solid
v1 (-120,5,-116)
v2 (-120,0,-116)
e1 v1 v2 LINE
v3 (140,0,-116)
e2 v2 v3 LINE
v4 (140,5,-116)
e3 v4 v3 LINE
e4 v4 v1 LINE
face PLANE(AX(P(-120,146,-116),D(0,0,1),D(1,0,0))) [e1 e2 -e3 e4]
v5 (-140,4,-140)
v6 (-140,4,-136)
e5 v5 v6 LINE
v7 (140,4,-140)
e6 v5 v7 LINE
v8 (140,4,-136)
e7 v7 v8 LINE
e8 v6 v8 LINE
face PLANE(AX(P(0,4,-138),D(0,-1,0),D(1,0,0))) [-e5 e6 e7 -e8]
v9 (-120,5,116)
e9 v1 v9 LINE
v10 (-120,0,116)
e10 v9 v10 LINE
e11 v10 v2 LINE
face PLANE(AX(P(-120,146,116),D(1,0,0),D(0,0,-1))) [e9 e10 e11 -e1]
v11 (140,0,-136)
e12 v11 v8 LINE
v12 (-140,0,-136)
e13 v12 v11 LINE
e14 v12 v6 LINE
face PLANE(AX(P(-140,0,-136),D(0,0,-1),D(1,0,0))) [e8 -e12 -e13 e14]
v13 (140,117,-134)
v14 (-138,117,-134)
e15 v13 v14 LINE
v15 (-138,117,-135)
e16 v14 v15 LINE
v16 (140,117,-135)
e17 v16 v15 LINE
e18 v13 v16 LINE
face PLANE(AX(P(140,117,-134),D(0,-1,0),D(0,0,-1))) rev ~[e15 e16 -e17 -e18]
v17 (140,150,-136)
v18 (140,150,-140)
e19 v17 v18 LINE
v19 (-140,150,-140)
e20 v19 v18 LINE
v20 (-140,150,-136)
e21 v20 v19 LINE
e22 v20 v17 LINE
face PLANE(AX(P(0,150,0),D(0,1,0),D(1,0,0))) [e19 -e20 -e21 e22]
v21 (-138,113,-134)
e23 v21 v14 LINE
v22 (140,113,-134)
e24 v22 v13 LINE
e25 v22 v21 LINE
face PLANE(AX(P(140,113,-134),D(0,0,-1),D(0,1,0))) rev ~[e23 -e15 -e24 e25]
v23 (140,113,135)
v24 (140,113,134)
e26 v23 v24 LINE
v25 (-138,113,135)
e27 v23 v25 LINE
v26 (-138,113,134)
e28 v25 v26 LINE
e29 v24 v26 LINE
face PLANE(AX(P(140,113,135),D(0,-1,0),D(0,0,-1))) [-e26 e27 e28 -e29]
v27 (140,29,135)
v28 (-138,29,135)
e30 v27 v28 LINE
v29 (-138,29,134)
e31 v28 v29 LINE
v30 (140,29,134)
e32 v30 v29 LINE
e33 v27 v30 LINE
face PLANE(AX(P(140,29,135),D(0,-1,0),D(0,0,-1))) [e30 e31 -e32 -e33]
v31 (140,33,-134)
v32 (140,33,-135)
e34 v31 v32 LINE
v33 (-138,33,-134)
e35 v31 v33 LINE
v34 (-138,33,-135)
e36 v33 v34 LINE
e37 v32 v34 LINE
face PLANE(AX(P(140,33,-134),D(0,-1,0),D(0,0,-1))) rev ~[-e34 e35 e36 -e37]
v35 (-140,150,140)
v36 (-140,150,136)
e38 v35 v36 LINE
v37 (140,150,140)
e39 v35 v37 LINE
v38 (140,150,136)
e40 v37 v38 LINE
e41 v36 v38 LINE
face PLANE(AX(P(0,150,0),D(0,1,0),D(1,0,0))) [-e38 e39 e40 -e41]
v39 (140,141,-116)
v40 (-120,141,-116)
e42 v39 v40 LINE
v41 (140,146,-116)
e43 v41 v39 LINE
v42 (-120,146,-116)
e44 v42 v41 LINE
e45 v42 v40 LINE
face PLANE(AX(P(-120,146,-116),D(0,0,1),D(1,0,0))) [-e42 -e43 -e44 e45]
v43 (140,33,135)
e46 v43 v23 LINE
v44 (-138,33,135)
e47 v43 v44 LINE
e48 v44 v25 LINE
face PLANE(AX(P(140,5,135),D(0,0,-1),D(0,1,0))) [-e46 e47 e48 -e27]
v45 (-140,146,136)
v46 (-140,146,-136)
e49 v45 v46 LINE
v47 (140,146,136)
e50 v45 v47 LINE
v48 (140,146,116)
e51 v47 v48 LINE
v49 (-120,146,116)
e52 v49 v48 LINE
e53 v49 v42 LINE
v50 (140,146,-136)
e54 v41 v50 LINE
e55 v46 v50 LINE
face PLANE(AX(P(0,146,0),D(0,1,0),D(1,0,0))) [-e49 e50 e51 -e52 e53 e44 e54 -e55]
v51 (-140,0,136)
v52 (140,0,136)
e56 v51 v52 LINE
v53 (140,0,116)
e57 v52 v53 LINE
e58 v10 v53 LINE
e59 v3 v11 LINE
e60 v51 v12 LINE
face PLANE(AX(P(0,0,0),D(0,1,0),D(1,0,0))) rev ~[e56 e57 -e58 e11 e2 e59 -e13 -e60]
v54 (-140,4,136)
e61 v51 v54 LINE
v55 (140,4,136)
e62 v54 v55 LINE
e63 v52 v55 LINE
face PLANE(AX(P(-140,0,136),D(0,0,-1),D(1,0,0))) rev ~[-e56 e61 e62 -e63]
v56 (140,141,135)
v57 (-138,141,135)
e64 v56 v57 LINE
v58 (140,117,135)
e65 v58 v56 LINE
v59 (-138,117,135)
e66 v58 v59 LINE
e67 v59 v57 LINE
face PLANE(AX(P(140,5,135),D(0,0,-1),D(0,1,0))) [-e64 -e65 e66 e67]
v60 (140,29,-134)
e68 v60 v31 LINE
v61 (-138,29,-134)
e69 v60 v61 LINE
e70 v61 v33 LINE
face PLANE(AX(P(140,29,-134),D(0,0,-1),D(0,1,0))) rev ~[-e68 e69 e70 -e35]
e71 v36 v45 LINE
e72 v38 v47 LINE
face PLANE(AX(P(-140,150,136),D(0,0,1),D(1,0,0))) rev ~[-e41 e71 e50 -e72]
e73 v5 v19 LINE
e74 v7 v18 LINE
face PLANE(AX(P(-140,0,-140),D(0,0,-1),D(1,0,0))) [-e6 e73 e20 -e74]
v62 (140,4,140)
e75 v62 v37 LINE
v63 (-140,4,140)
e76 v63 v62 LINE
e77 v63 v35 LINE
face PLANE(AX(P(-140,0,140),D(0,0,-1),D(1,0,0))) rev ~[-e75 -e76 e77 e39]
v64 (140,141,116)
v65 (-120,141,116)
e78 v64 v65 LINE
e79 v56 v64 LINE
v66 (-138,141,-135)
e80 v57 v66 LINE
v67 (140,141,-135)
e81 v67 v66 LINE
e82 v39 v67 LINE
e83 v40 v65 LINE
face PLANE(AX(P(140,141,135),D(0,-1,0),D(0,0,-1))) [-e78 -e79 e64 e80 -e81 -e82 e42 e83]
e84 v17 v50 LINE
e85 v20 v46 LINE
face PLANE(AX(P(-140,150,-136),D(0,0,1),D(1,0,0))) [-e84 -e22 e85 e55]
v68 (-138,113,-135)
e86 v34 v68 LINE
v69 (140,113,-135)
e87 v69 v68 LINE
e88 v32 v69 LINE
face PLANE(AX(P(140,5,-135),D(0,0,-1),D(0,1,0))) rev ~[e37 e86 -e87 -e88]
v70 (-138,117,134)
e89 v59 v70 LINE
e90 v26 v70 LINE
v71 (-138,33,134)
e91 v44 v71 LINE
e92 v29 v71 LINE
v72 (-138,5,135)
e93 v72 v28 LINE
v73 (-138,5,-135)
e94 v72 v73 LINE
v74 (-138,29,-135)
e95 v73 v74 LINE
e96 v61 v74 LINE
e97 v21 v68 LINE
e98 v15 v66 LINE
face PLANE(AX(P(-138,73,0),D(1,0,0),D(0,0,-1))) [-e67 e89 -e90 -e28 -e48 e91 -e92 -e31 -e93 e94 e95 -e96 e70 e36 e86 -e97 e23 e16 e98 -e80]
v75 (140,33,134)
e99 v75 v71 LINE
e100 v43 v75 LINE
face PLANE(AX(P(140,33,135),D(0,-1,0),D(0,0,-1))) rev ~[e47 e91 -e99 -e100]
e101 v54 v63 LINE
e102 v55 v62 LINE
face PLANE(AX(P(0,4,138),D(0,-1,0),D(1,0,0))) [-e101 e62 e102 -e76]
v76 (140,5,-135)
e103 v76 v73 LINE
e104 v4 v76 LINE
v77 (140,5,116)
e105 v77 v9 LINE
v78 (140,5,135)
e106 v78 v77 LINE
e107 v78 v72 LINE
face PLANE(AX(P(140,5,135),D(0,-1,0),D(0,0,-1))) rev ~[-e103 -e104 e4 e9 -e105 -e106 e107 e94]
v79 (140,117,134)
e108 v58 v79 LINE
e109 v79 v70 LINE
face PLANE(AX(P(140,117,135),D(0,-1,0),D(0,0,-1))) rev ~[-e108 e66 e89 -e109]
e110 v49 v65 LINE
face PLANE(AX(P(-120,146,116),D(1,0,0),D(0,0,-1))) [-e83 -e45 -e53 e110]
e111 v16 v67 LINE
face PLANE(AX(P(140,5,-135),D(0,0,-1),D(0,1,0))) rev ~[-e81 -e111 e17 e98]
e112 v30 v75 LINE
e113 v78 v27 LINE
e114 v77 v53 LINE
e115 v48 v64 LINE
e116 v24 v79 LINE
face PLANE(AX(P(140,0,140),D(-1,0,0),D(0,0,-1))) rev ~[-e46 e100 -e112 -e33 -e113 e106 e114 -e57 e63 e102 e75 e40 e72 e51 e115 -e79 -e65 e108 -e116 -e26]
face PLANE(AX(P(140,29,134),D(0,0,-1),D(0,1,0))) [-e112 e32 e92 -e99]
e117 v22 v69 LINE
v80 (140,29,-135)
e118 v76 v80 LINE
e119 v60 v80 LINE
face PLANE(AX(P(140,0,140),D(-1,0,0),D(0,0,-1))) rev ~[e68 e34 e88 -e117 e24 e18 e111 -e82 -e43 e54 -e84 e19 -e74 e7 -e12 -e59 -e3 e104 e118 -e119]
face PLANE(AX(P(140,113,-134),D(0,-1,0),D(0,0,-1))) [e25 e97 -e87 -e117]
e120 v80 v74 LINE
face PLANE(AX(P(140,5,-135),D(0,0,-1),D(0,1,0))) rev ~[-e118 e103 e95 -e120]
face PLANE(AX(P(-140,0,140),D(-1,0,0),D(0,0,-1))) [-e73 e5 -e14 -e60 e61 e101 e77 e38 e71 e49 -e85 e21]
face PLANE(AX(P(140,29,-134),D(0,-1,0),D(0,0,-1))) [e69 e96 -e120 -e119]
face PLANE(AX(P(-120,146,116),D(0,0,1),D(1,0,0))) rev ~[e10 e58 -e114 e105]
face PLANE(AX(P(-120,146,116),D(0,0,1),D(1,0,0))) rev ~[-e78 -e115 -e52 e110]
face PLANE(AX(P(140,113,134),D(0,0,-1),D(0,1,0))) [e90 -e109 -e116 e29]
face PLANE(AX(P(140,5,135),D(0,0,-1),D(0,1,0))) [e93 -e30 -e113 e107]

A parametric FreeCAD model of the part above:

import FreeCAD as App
import Part
import Sketcher

doc = App.newDocument("Part")
body = doc.addObject("PartDesign::Body", "Body")

sketch1 = doc.addObject("Sketcher::SketchObject", "Sketch")
body.addObject(sketch1)
sketch1.AttachmentSupport = (doc.XZ_Plane, [""])
sketch1.MapMode = "FlatFace"
sketch1.addGeometry([
    Part.LineSegment(App.Vector(-140, -140, 0), App.Vector(-140, 140, 0)),
    Part.LineSegment(App.Vector(-140, 140, 0), App.Vector(140, 140, 0)),
    Part.LineSegment(App.Vector(140, 140, 0), App.Vector(140, -140, 0)),
    Part.LineSegment(App.Vector(140, -140, 0), App.Vector(-140, -140, 0)),
], False)
sketch1.addConstraint([
    Sketcher.Constraint("Coincident", 0, 2, 1, 1),
    Sketcher.Constraint("Coincident", 1, 2, 2, 1),
    Sketcher.Constraint("Coincident", 2, 2, 3, 1),
    Sketcher.Constraint("Coincident", 3, 2, 0, 1),
    Sketcher.Constraint("Vertical", 0),
    Sketcher.Constraint("Horizontal", 1),
    Sketcher.Constraint("Vertical", 2),
    Sketcher.Constraint("Horizontal", 3),
    Sketcher.Constraint("Symmetric", 0, 2, 2, 2, -1, 1),
    Sketcher.Constraint("Equal", 3, 0),
    Sketcher.Constraint("DistanceX", 1, 1, 1, 2, 280.0),
])
pad1 = doc.addObject("PartDesign::Pad", "Pad")
body.addObject(pad1)
pad1.Profile = sketch1
pad1.Length = 150
pad1.Reversed = True

sketch2 = doc.addObject("Sketcher::SketchObject", "Sketch001")
body.addObject(sketch2)
sketch2.AttachmentSupport = (doc.XZ_Plane, [""])
sketch2.MapMode = "FlatFace"
sketch2.AttachmentOffset = App.Placement(App.Vector(0, 0, -150), App.Rotation())
sketch2.addGeometry([
    Part.LineSegment(App.Vector(-140, -136, 0), App.Vector(-140, 136, 0)),
    Part.LineSegment(App.Vector(-140, 136, 0), App.Vector(140, 136, 0)),
    Part.LineSegment(App.Vector(140, 136, 0), App.Vector(140, -136, 0)),
    Part.LineSegment(App.Vector(140, -136, 0), App.Vector(-140, -136, 0)),
], False)
sketch2.addConstraint([
    Sketcher.Constraint("Coincident", 0, 2, 1, 1),
    Sketcher.Constraint("Coincident", 1, 2, 2, 1),
    Sketcher.Constraint("Coincident", 2, 2, 3, 1),
    Sketcher.Constraint("Coincident", 3, 2, 0, 1),
    Sketcher.Constraint("Vertical", 0),
    Sketcher.Constraint("Horizontal", 1),
    Sketcher.Constraint("Vertical", 2),
    Sketcher.Constraint("Horizontal", 3),
    Sketcher.Constraint("Symmetric", 0, 2, 2, 2, -1, 1),
    Sketcher.Constraint("DistanceX", 1, 1, 1, 2, 280.0),
    Sketcher.Constraint("DistanceY", 0, 1, 0, 2, 272.0),
])
pocket1 = doc.addObject("PartDesign::Pocket", "Pocket")
body.addObject(pocket1)
pocket1.Profile = sketch2
pocket1.Length = 4
pocket1.Reversed = True

sketch3 = doc.addObject("Sketcher::SketchObject", "Sketch002")
body.addObject(sketch3)
sketch3.AttachmentSupport = (doc.XZ_Plane, [""])
sketch3.MapMode = "FlatFace"
sketch3.addGeometry([
    Part.LineSegment(App.Vector(-140, 140, 0), App.Vector(-140, 136, 0)),
    Part.LineSegment(App.Vector(-140, 136, 0), App.Vector(140, 136, 0)),
    Part.LineSegment(App.Vector(140, 136, 0), App.Vector(140, 140, 0)),
    Part.LineSegment(App.Vector(140, 140, 0), App.Vector(-140, 140, 0)),
    Part.LineSegment(App.Vector(-140, -136, 0), App.Vector(-140, -140, 0)),
    Part.LineSegment(App.Vector(-140, -140, 0), App.Vector(140, -140, 0)),
    Part.LineSegment(App.Vector(140, -140, 0), App.Vector(140, -136, 0)),
    Part.LineSegment(App.Vector(140, -136, 0), App.Vector(-140, -136, 0)),
], False)
sketch3.addConstraint([
    Sketcher.Constraint("Coincident", 0, 2, 1, 1),
    Sketcher.Constraint("Coincident", 1, 2, 2, 1),
    Sketcher.Constraint("Coincident", 2, 2, 3, 1),
    Sketcher.Constraint("Coincident", 3, 2, 0, 1),
    Sketcher.Constraint("Coincident", 4, 2, 5, 1),
    Sketcher.Constraint("Coincident", 5, 2, 6, 1),
    Sketcher.Constraint("Coincident", 6, 2, 7, 1),
    Sketcher.Constraint("Coincident", 7, 2, 4, 1),
    Sketcher.Constraint("Vertical", 0),
    Sketcher.Constraint("Horizontal", 1),
    Sketcher.Constraint("Vertical", 2),
    Sketcher.Constraint("Horizontal", 3),
    Sketcher.Constraint("Vertical", 4),
    Sketcher.Constraint("Horizontal", 5),
    Sketcher.Constraint("Vertical", 6),
    Sketcher.Constraint("Horizontal", 7),
    Sketcher.Constraint("Symmetric", 2, 2, 4, 2, -1, 1),
    Sketcher.Constraint("Symmetric", 0, 2, 6, 2, -1, 1),
    Sketcher.Constraint("Vertical", 3, 2, 4, 2),
    Sketcher.Constraint("DistanceX", 1, 1, 1, 2, 280.0),
    Sketcher.Constraint("DistanceY", 0, 2, 0, 1, 4.0),
    Sketcher.Constraint("DistanceY", -1, 1, 0, 2, 136.0),
])
pocket2 = doc.addObject("PartDesign::Pocket", "Pocket001")
body.addObject(pocket2)
pocket2.Profile = sketch3
pocket2.Length = 4

sketch4 = doc.addObject("Sketcher::SketchObject", "Sketch003")
body.addObject(sketch4)
sketch4.AttachmentSupport = (doc.YZ_Plane, [""])
sketch4.MapMode = "FlatFace"
sketch4.AttachmentOffset = App.Placement(App.Vector(0, 0, 140), App.Rotation())
sketch4.addGeometry([
    Part.LineSegment(App.Vector(141, 135, 0), App.Vector(5, 135, 0)),
    Part.LineSegment(App.Vector(5, 135, 0), App.Vector(5, -135, 0)),
    Part.LineSegment(App.Vector(5, -135, 0), App.Vector(141, -135, 0)),
    Part.LineSegment(App.Vector(141, -135, 0), App.Vector(141, 135, 0)),
], False)
sketch4.addConstraint([
    Sketcher.Constraint("Coincident", 0, 2, 1, 1),
    Sketcher.Constraint("Coincident", 1, 2, 2, 1),
    Sketcher.Constraint("Coincident", 2, 2, 3, 1),
    Sketcher.Constraint("Coincident", 3, 2, 0, 1),
    Sketcher.Constraint("Horizontal", 0),
    Sketcher.Constraint("Vertical", 1),
    Sketcher.Constraint("Horizontal", 2),
    Sketcher.Constraint("Vertical", 3),
    Sketcher.Constraint("DistanceX", 0, 2, 0, 1, 136.0),
    Sketcher.Constraint("DistanceY", 1, 2, 1, 1, 270.0),
    Sketcher.Constraint("DistanceX", -1, 1, 0, 2, 5.0),
    Sketcher.Constraint("DistanceY", -1, 1, 0, 2, 135.0),
])
pocket3 = doc.addObject("PartDesign::Pocket", "Pocket002")
body.addObject(pocket3)
pocket3.Profile = sketch4
pocket3.Length = 278

sketch5 = doc.addObject("Sketcher::SketchObject", "Sketch004")
body.addObject(sketch5)
sketch5.AttachmentSupport = (doc.XZ_Plane, [""])
sketch5.MapMode = "FlatFace"
sketch5.AttachmentOffset = App.Placement(App.Vector(0, 0, -146), App.Rotation())
sketch5.addGeometry([
    Part.LineSegment(App.Vector(-120, -116, 0), App.Vector(-120, 116, 0)),
    Part.LineSegment(App.Vector(-120, 116, 0), App.Vector(140, 116, 0)),
    Part.LineSegment(App.Vector(140, 116, 0), App.Vector(140, -116, 0)),
    Part.LineSegment(App.Vector(140, -116, 0), App.Vector(-120, -116, 0)),
], False)
sketch5.addConstraint([
    Sketcher.Constraint("Coincident", 0, 2, 1, 1),
    Sketcher.Constraint("Coincident", 1, 2, 2, 1),
    Sketcher.Constraint("Coincident", 2, 2, 3, 1),
    Sketcher.Constraint("Coincident", 3, 2, 0, 1),
    Sketcher.Constraint("Vertical", 0),
    Sketcher.Constraint("Horizontal", 1),
    Sketcher.Constraint("Vertical", 2),
    Sketcher.Constraint("Horizontal", 3),
    Sketcher.Constraint("DistanceX", 1, 1, 1, 2, 260.0),
    Sketcher.Constraint("DistanceY", 0, 1, 0, 2, 232.0),
    Sketcher.Constraint("DistanceX", 0, 2, -1, 1, 120.0),
    Sketcher.Constraint("DistanceY", -1, 1, 0, 2, 116.0),
])
pocket4 = doc.addObject("PartDesign::Pocket", "Pocket003")
body.addObject(pocket4)
pocket4.Profile = sketch5
pocket4.Type = "ThroughAll"
pocket4.Reversed = True

sketch6 = doc.addObject("Sketcher::SketchObject", "Sketch005")
body.addObject(sketch6)
sketch6.AttachmentSupport = (doc.YZ_Plane, [""])
sketch6.MapMode = "FlatFace"
sketch6.AttachmentOffset = App.Placement(App.Vector(0, 0, 140), App.Rotation())
sketch6.addGeometry([
    Part.LineSegment(App.Vector(117, 135, 0), App.Vector(113, 135, 0)),
    Part.LineSegment(App.Vector(113, 135, 0), App.Vector(113, 134, 0)),
    Part.LineSegment(App.Vector(113, 134, 0), App.Vector(117, 134, 0)),
    Part.LineSegment(App.Vector(117, 134, 0), App.Vector(117, 135, 0)),
    Part.LineSegment(App.Vector(33, 135, 0), App.Vector(29, 135, 0)),
    Part.LineSegment(App.Vector(29, 135, 0), App.Vector(29, 134, 0)),
    Part.LineSegment(App.Vector(29, 134, 0), App.Vector(33, 134, 0)),
    Part.LineSegment(App.Vector(33, 134, 0), App.Vector(33, 135, 0)),
    Part.LineSegment(App.Vector(33, -134, 0), App.Vector(29, -134, 0)),
    Part.LineSegment(App.Vector(29, -134, 0), App.Vector(29, -135, 0)),
    Part.LineSegment(App.Vector(29, -135, 0), App.Vector(33, -135, 0)),
    Part.LineSegment(App.Vector(33, -135, 0), App.Vector(33, -134, 0)),
    Part.LineSegment(App.Vector(117, -134, 0), App.Vector(113, -134, 0)),
    Part.LineSegment(App.Vector(113, -134, 0), App.Vector(113, -135, 0)),
    Part.LineSegment(App.Vector(113, -135, 0), App.Vector(117, -135, 0)),
    Part.LineSegment(App.Vector(117, -135, 0), App.Vector(117, -134, 0)),
], False)
sketch6.addConstraint([
    Sketcher.Constraint("Coincident", 0, 2, 1, 1),
    Sketcher.Constraint("Coincident", 1, 2, 2, 1),
    Sketcher.Constraint("Coincident", 2, 2, 3, 1),
    Sketcher.Constraint("Coincident", 3, 2, 0, 1),
    Sketcher.Constraint("Coincident", 4, 2, 5, 1),
    Sketcher.Constraint("Coincident", 5, 2, 6, 1),
    Sketcher.Constraint("Coincident", 6, 2, 7, 1),
    Sketcher.Constraint("Coincident", 7, 2, 4, 1),
    Sketcher.Constraint("Coincident", 8, 2, 9, 1),
    Sketcher.Constraint("Coincident", 9, 2, 10, 1),
    Sketcher.Constraint("Coincident", 10, 2, 11, 1),
    Sketcher.Constraint("Coincident", 11, 2, 8, 1),
    Sketcher.Constraint("Coincident", 12, 2, 13, 1),
    Sketcher.Constraint("Coincident", 13, 2, 14, 1),
    Sketcher.Constraint("Coincident", 14, 2, 15, 1),
    Sketcher.Constraint("Coincident", 15, 2, 12, 1),
    Sketcher.Constraint("Horizontal", 0),
    Sketcher.Constraint("Vertical", 1),
    Sketcher.Constraint("Horizontal", 2),
    Sketcher.Constraint("Vertical", 3),
    Sketcher.Constraint("Horizontal", 4),
    Sketcher.Constraint("Vertical", 5),
    Sketcher.Constraint("Horizontal", 6),
    Sketcher.Constraint("Vertical", 7),
    Sketcher.Constraint("Horizontal", 8),
    Sketcher.Constraint("Vertical", 9),
    Sketcher.Constraint("Horizontal", 10),
    Sketcher.Constraint("Vertical", 11),
    Sketcher.Constraint("Horizontal", 12),
    Sketcher.Constraint("Vertical", 13),
    Sketcher.Constraint("Horizontal", 14),
    Sketcher.Constraint("Vertical", 15),
    Sketcher.Constraint("Symmetric", 5, 2, 8, 2, -1),
    Sketcher.Constraint("Symmetric", 7, 2, 10, 2, -1),
    Sketcher.Constraint("Symmetric", 1, 2, 12, 2, -1),
    Sketcher.Constraint("Symmetric", 3, 2, 14, 2, -1),
    Sketcher.Constraint("Horizontal", 3, 2, 4, 2),
    Sketcher.Constraint("Horizontal", 2, 2, 5, 2),
    Sketcher.Constraint("Equal", 2, 4),
    Sketcher.Constraint("DistanceX", 0, 2, 0, 1, 4.0),
    Sketcher.Constraint("DistanceY", 1, 2, 1, 1, 1.0),
    Sketcher.Constraint("DistanceX", -1, 1, 0, 2, 113.0),
    Sketcher.Constraint("DistanceY", -1, 1, 0, 2, 135.0),
    Sketcher.Constraint("DistanceX", -1, 1, 4, 2, 29.0),
])
pad2 = doc.addObject("PartDesign::Pad", "Pad001")
body.addObject(pad2)
pad2.Profile = sketch6
pad2.Length = 278
pad2.Reversed = True

doc.recompute()
